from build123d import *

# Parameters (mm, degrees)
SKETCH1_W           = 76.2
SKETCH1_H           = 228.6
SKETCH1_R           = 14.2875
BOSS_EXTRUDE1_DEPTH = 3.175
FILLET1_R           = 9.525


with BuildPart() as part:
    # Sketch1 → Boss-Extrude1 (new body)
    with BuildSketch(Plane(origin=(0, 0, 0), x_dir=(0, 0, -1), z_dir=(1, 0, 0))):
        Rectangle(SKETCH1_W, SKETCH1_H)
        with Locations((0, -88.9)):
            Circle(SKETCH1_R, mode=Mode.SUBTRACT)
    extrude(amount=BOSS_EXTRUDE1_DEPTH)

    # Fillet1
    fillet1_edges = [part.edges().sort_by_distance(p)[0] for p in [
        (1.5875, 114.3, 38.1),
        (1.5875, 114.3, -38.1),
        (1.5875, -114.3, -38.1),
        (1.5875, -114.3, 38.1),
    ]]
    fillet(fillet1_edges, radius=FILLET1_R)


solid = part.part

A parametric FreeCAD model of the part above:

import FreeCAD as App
import Part
import Sketcher

V = App.Vector
Q = App.Units.Quantity


def edges_at(feature, points):
    """Names of the edges that pass closest to the given points."""
    edges = feature.Shape.Edges
    near = lambda p: min(range(len(edges)), key=lambda i: edges[i].distToShape(Part.Vertex(*p))[0])
    return sorted({f"Edge{near(p) + 1}" for p in points})


def add_polygon(sketch, points):
    """Adds a closed chain of lines whose ends are joined by coincident constraints."""
    first, n = sketch.GeometryCount, len(points)
    for a, b in zip(points, points[1:] + points[:1]):
        sketch.addGeometry(Part.LineSegment(App.Vector(*a, 0), App.Vector(*b, 0)), False)
    for i in range(n):
        sketch.addConstraint(Sketcher.Constraint("Coincident", first + i, 2, first + (i + 1) % n, 1))

doc = App.newDocument("Part")
body = doc.addObject("PartDesign::Body", "Body")

# Sketch on YZ plane
sketch1 = doc.addObject("Sketcher::SketchObject", "Sketch")
body.addObject(sketch1)
sketch1.AttachmentSupport = (doc.YZ_Plane, [""])
sketch1.MapMode = "FlatFace"
add_polygon(sketch1, [(114.3, 38.1), (-114.3, 38.1), (-114.3, -38.1), (114.3, -38.1)])  # lines 0-3
sketch1.addGeometry(Part.Circle(V(-88.9, 0, 0), V(0, 0, 1), 14.2875), False)  # 4
sketch1.addConstraint([
    Sketcher.Constraint("Horizontal", 0),
    Sketcher.Constraint("Vertical", 1),
    Sketcher.Constraint("Horizontal", 2),
    Sketcher.Constraint("Vertical", 3),
    Sketcher.Constraint("Symmetric", 0, 2, 2, 2, -1, 1),
    Sketcher.Constraint("PointOnObject", 4, 3, -1),
    Sketcher.Constraint("DistanceX", 0, 2, 0, 1, Q("9 in")),
    Sketcher.Constraint("DistanceY", 1, 2, 1, 1, Q("3 in")),
    Sketcher.Constraint("Diameter", 4, Q("1.125 in")),
    Sketcher.Constraint("DistanceX", 0, 2, 4, 3, Q("1 in")),
])
pad1 = doc.addObject("PartDesign::Pad", "Pad")
body.addObject(pad1)
pad1.Profile = sketch1
pad1.Length = Q("0.125 in")
doc.recompute()

fillet = doc.addObject("PartDesign::Fillet", "Fillet")
body.addObject(fillet)
fillet.Base = (pad1, edges_at(pad1, [
    (1.587, 114.3, 38.1),
    (1.587, 114.3, -38.1),
    (1.587, -114.3, -38.1),
    (1.587, -114.3, 38.1),
]))
fillet.Radius = Q("0.375 in")

doc.recompute()
